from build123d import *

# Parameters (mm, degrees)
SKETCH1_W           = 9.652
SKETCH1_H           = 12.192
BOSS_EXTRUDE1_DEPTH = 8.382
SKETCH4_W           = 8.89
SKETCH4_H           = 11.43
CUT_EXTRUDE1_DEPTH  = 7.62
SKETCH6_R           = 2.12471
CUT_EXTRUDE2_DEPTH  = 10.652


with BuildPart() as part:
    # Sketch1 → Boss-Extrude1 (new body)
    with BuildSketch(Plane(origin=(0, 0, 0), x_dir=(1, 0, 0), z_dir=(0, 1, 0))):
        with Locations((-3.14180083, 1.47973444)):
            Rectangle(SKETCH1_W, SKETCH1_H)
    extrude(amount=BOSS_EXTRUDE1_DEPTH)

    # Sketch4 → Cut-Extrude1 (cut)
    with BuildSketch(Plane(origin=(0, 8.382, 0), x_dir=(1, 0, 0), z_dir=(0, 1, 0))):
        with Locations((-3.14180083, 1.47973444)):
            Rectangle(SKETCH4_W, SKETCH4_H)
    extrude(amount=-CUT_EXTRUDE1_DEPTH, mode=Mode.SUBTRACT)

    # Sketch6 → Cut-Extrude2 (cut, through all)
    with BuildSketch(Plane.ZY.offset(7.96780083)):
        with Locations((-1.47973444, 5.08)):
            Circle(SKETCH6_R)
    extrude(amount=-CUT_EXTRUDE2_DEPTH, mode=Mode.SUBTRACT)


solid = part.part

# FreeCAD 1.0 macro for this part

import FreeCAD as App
import Part
import Sketcher

V = App.Vector
Q = App.Units.Quantity


def add_polygon(sketch, points):
    """Adds a closed chain of lines whose ends are joined by coincident constraints."""
    first, n = sketch.GeometryCount, len(points)
    for a, b in zip(points, points[1:] + points[:1]):
        sketch.addGeometry(Part.LineSegment(App.Vector(*a, 0), App.Vector(*b, 0)), False)
    for i in range(n):
        sketch.addConstraint(Sketcher.Constraint("Coincident", first + i, 2, first + (i + 1) % n, 1))

doc = App.newDocument("Part")
body = doc.addObject("PartDesign::Body", "Body")

sketch1 = body.newObject("Sketcher::SketchObject", "Sketch")
sketch1.AttachmentSupport = (doc.getObject("XZ_Plane"), [""])
sketch1.MapMode = "FlatFace"
add_polygon(sketch1, [(-7.967801, -7.575734), (-7.967801, 4.616266), (1.684199, 4.616266), (1.684199, -7.575734)])
sketch1.addConstraint([
    Sketcher.Constraint("Vertical", 0),
    Sketcher.Constraint("Horizontal", 1),
    Sketcher.Constraint("Vertical", 2),
    Sketcher.Constraint("Horizontal", 3),
    Sketcher.Constraint("DistanceX", 1, 1, 1, 2, Q("0.38 in")),
    Sketcher.Constraint("DistanceY", 0, 1, 0, 2, Q("0.48 in")),
    Sketcher.Constraint("DistanceX", 0, 2, -1, 1, Q("7.967801 mm")),
    Sketcher.Constraint("DistanceY", -1, 1, 0, 2, Q("4.616266 mm")),
])
pad1 = body.newObject("PartDesign::Pad", "Pad")
pad1.Profile = sketch1
pad1.Length = Q("0.33 in")
pad1.Reversed = True

sketch2 = body.newObject("Sketcher::SketchObject", "Sketch001")
sketch2.AttachmentSupport = (doc.getObject("XZ_Plane"), [""])
sketch2.MapMode = "FlatFace"
sketch2.AttachmentOffset = App.Placement(V(0, 0, -0.33 * 25.4), App.Rotation())
add_polygon(sketch2, [(-7.586801, -7.194734), (-7.586801, 4.235266), (1.303199, 4.235266), (1.303199, -7.194734)])
sketch2.addConstraint([
    Sketcher.Constraint("Vertical", 0),
    Sketcher.Constraint("Horizontal", 1),
    Sketcher.Constraint("Vertical", 2),
    Sketcher.Constraint("Horizontal", 3),
    Sketcher.Constraint("DistanceX", 1, 1, 1, 2, Q("0.35 in")),
    Sketcher.Constraint("DistanceY", 0, 1, 0, 2, Q("0.45 in")),
    Sketcher.Constraint("DistanceX", 0, 2, -1, 1, Q("7.586801 mm")),
    Sketcher.Constraint("DistanceY", -1, 1, 0, 2, Q("4.235266 mm")),
])
pocket1 = body.newObject("PartDesign::Pocket", "Pocket")
pocket1.Profile = sketch2
pocket1.Length = Q("0.3 in")
pocket1.Reversed = True

sketch3 = body.newObject("Sketcher::SketchObject", "Sketch002")
sketch3.AttachmentSupport = (doc.getObject("YZ_Plane"), [""])
sketch3.MapMode = "FlatFace"
sketch3.AttachmentOffset = App.Placement(V(0, 0, -7.967801), App.Rotation())
sketch3.addGeometry(Part.Circle(V(5.08, -1.479734, 0), V(0, 0, 1), 2.12471), False)
sketch3.addConstraint([
    Sketcher.Constraint("Diameter", 0, Q("0.1673 in")),
    Sketcher.Constraint("DistanceX", -1, 1, 0, 3, Q("0.2 in")),
    Sketcher.Constraint("DistanceY", 0, 3, -1, 1, Q("1.479734 mm")),
])
pocket2 = body.newObject("PartDesign::Pocket", "Pocket001")
pocket2.Profile = sketch3
pocket2.Type = "ThroughAll"
pocket2.Reversed = True

doc.recompute()
